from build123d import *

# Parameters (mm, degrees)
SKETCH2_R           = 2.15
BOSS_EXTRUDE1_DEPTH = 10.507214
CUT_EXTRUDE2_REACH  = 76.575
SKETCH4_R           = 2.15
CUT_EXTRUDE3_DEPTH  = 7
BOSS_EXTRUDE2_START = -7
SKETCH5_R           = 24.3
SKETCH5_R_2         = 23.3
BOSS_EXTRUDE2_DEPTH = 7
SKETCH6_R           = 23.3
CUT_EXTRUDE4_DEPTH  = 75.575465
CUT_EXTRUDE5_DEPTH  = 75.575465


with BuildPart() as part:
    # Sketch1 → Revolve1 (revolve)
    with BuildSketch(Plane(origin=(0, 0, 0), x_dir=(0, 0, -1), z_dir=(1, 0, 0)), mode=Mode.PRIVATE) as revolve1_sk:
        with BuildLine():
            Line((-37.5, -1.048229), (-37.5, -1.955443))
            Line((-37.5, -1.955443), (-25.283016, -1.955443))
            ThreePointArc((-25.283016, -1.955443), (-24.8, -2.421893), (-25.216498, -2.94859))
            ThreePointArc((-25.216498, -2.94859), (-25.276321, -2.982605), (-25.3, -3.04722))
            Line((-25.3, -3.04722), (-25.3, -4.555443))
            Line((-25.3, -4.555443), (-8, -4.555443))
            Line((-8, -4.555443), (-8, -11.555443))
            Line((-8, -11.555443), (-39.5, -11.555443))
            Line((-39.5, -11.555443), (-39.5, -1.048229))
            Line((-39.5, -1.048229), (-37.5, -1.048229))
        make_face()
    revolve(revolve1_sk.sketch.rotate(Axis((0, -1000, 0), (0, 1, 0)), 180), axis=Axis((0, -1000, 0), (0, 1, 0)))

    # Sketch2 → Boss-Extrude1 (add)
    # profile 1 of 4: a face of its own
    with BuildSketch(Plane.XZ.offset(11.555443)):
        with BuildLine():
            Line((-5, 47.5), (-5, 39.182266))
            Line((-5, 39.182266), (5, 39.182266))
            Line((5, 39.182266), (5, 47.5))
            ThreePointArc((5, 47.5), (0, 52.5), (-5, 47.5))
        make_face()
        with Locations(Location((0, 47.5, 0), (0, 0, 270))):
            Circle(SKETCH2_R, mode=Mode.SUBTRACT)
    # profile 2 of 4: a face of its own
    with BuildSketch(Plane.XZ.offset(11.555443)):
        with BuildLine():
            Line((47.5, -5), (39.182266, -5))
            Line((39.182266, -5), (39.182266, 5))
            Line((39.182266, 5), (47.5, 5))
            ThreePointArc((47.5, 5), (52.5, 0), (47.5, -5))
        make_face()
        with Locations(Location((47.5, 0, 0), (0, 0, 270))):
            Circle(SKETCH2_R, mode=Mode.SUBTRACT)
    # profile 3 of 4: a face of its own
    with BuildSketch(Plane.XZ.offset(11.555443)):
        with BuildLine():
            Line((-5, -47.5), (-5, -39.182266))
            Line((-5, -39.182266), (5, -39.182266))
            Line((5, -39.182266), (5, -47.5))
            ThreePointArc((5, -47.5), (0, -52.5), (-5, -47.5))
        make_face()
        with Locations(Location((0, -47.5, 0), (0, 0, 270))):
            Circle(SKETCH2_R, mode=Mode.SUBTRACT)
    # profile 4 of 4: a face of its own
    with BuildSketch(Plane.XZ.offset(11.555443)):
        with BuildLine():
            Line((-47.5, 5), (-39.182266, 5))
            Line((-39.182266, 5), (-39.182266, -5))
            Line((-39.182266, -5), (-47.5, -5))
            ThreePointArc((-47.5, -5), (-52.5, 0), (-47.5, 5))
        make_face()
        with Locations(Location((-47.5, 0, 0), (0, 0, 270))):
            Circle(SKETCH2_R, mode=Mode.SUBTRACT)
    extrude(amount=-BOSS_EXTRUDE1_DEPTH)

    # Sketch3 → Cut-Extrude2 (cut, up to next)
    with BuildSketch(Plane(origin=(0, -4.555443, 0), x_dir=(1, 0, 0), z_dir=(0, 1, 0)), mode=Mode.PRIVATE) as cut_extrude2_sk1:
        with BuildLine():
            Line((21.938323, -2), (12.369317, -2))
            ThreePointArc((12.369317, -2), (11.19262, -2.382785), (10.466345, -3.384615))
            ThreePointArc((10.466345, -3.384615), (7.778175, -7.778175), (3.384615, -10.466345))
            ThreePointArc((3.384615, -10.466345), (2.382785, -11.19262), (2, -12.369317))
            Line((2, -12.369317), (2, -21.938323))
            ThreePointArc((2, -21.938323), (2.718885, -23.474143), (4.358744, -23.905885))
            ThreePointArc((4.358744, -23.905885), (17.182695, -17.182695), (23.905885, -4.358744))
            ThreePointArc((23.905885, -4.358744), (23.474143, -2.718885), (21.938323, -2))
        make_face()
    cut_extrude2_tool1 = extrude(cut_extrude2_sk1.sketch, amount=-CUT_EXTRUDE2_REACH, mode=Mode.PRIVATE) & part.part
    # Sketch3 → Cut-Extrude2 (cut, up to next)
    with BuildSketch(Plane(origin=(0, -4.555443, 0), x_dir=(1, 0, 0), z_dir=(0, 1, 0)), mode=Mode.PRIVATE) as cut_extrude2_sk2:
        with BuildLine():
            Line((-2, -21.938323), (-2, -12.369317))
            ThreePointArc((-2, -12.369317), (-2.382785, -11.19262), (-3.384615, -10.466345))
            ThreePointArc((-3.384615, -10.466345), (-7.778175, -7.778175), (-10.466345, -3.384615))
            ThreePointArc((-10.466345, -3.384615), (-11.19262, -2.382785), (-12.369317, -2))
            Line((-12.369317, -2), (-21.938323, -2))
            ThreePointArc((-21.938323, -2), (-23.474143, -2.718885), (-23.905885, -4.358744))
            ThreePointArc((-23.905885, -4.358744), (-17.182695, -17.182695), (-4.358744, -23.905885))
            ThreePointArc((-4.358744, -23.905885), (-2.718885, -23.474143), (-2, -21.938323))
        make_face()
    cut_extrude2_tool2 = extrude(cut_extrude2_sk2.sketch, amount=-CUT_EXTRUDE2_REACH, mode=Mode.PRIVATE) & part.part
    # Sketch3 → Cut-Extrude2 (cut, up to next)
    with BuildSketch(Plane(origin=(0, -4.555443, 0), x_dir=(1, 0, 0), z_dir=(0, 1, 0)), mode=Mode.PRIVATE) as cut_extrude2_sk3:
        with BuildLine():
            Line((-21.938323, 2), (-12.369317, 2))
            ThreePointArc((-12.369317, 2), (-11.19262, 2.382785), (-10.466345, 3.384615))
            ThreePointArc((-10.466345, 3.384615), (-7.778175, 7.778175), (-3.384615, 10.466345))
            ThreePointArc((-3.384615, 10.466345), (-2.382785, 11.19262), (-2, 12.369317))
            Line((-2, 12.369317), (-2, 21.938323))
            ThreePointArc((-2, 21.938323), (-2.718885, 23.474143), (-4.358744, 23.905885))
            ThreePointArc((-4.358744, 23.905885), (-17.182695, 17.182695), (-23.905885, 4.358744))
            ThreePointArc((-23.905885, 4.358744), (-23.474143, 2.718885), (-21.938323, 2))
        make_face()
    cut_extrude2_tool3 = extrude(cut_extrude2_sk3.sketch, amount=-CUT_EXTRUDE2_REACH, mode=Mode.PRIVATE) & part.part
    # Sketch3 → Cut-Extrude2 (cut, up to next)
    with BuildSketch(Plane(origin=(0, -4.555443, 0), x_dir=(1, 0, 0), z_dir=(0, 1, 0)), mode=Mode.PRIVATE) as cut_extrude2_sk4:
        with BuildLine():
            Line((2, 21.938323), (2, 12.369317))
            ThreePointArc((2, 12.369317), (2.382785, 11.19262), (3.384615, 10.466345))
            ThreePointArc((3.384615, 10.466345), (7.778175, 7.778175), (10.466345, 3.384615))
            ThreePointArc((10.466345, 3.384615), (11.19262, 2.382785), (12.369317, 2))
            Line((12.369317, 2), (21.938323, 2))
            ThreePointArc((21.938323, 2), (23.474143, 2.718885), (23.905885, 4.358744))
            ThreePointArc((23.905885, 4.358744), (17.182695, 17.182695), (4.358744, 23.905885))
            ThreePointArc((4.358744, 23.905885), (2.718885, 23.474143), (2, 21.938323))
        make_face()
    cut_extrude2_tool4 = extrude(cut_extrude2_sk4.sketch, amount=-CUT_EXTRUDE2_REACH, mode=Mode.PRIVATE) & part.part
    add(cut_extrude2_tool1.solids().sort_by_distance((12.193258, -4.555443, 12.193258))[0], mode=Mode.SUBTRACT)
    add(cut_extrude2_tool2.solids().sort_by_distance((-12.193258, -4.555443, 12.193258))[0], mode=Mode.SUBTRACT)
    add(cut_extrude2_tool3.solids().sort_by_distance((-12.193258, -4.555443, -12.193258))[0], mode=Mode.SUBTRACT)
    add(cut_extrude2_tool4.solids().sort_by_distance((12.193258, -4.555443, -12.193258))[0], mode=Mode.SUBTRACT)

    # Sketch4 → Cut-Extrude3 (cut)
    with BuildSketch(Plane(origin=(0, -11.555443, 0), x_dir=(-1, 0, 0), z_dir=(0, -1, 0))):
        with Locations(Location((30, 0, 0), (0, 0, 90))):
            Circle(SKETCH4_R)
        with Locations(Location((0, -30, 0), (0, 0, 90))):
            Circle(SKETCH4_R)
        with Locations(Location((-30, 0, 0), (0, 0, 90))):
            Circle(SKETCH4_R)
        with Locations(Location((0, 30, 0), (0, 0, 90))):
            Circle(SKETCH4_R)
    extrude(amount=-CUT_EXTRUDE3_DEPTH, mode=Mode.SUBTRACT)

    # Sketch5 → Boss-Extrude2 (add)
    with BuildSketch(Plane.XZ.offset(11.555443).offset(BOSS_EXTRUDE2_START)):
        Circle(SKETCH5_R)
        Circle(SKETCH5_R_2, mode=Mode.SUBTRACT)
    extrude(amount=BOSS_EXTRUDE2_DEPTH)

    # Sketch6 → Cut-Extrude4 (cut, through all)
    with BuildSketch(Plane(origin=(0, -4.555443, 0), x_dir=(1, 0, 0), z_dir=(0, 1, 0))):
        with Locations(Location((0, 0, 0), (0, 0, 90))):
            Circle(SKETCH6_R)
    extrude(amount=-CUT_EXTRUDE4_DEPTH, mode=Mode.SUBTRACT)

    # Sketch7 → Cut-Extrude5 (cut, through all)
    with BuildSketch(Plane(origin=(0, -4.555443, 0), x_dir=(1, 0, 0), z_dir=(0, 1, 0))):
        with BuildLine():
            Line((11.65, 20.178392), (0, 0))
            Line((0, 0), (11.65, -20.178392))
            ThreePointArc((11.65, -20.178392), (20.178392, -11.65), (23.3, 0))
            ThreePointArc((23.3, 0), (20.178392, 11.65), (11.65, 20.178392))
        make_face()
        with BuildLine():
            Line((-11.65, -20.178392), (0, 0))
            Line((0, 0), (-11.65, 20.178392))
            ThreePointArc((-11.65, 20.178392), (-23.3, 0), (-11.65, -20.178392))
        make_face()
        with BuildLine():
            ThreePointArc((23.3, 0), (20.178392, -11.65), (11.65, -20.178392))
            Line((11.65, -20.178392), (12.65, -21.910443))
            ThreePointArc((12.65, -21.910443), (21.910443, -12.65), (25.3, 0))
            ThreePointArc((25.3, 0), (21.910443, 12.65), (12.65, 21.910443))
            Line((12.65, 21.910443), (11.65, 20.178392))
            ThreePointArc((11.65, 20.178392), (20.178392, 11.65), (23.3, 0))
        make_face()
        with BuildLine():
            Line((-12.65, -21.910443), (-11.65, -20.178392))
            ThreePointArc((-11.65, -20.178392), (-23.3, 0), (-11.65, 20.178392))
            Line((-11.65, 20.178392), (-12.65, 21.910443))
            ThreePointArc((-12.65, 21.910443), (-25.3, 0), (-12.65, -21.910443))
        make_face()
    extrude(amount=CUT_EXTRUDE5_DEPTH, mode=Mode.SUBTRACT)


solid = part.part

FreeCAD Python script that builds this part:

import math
import FreeCAD as App
import Part
import Sketcher

V = App.Vector
Q = App.Units.Quantity

doc = App.newDocument("Part")
body = doc.addObject("PartDesign::Body", "Body")

sketch1 = body.newObject("Sketcher::SketchObject", "Sketch")
sketch1.AttachmentSupport = (doc.getObject("YZ_Plane"), [""])
sketch1.MapMode = "FlatFace"
sketch1.addGeometry(Part.LineSegment(V(-1.96, 37.5, 0), V(-1.05, 37.5, 0)), False)
sketch1.addGeometry(Part.LineSegment(V(-1.05, 37.5, 0), V(-1.05, 39.5, 0)), False)
sketch1.addGeometry(Part.LineSegment(V(-1.05, 39.5, 0), V(-11.56, 39.5, 0)), False)
sketch1.addGeometry(Part.LineSegment(V(-11.56, 39.5, 0), V(-11.56, 8, 0)), False)
sketch1.addGeometry(Part.LineSegment(V(-11.56, 8, 0), V(-4.56, 8, 0)), False)
sketch1.addGeometry(Part.LineSegment(V(-4.56, 8, 0), V(-4.56, 25.3, 0)), False)
sketch1.addGeometry(Part.LineSegment(V(-4.56, 25.3, 0), V(-3.05, 25.3, 0)), False)
sketch1.addGeometry(Part.ArcOfCircle(Part.Circle(V(-3.05, 25.2, 0), V(0, 0, 1), 0.1), math.radians(9), math.radians(90)), False)
sketch1.addGeometry(Part.ArcOfCircle(Part.Circle(V(-2.46, 25.3, 0), V(0, 0, 1), 0.5), math.radians(-171), math.radians(-2)), False)
sketch1.addGeometry(Part.LineSegment(V(-1.96, 25.28, 0), V(-1.96, 37.5, 0)), False)
sketch1.addConstraint(Sketcher.Constraint("Coincident", 0, 2, 1, 1))
sketch1.addConstraint(Sketcher.Constraint("Coincident", 1, 2, 2, 1))
sketch1.addConstraint(Sketcher.Constraint("Coincident", 2, 2, 3, 1))
sketch1.addConstraint(Sketcher.Constraint("Coincident", 3, 2, 4, 1))
sketch1.addConstraint(Sketcher.Constraint("Coincident", 4, 2, 5, 1))
sketch1.addConstraint(Sketcher.Constraint("Coincident", 5, 2, 6, 1))
sketch1.addConstraint(Sketcher.Constraint("Coincident", 6, 2, 7, 2))
sketch1.addConstraint(Sketcher.Constraint("Coincident", 7, 1, 8, 1))
sketch1.addConstraint(Sketcher.Constraint("Coincident", 8, 2, 9, 1))
sketch1.addConstraint(Sketcher.Constraint("Coincident", 9, 2, 0, 1))
sketch1.addConstraint(Sketcher.Constraint("Horizontal", 0))
sketch1.addConstraint(Sketcher.Constraint("Vertical", 1))
sketch1.addConstraint(Sketcher.Constraint("Horizontal", 2))
sketch1.addConstraint(Sketcher.Constraint("Vertical", 3))
sketch1.addConstraint(Sketcher.Constraint("Horizontal", 4))
sketch1.addConstraint(Sketcher.Constraint("Vertical", 5))
sketch1.addConstraint(Sketcher.Constraint("Horizontal", 6))
sketch1.addConstraint(Sketcher.Constraint("Vertical", 9))
sketch1.addConstraint(Sketcher.Constraint("Vertical", 7, 3, 6, 2))
sketch1.addConstraint(Sketcher.Constraint("Radius", 7, 0.100001))
sketch1.addConstraint(Sketcher.Constraint("DistanceX", 4, 1, 4, 2, 7.0))
sketch1.addConstraint(Sketcher.Constraint("DistanceY", 1, 1, 1, 2, 2.0))
sketch1.addConstraint(Sketcher.Constraint("DistanceY", 3, 2, 3, 1, 31.5))
sketch1.addConstraint(Sketcher.Constraint("DistanceY", 5, 1, 5, 2, 17.3))
sketch1.addConstraint(Sketcher.Constraint("DistanceY", -1, 1, 3, 2, 8.0))
sketch1.addConstraint(Sketcher.Constraint("DistanceX", 5, 2, 8, 2, 2.6))
sketch1.addConstraint(Sketcher.Constraint("Radius", 8, 0.500128))
sketch1.addConstraint(Sketcher.Constraint("DistanceY", 7, 3, 7, 1, 0.016499))
sketch1.addConstraint(Sketcher.Constraint("DistanceX", 0, 1, 0, 2, 0.907214))
sketch1.addConstraint(Sketcher.Constraint("DistanceX", 6, 1, 6, 2, 1.508223))
sketch1.addConstraint(Sketcher.Constraint("DistanceY", 9, 1, 9, 2, 12.216984))
sketch1.addConstraint(Sketcher.Constraint("DistanceX", 7, 3, -1, 1, 3.04722))
revolution = body.newObject("PartDesign::Revolution", "Revolution")
revolution.Profile = sketch1
revolution.ReferenceAxis = (sketch1, ["H_Axis"])
revolution.Angle = 360

sketch2 = body.newObject("Sketcher::SketchObject", "Sketch001")
sketch2.AttachmentSupport = (doc.getObject("XZ_Plane"), [""])
sketch2.MapMode = "FlatFace"
sketch2.AttachmentOffset = App.Placement(V(0, 0, 11.555443), App.Rotation())
sketch2.addGeometry(Part.LineSegment(V(-5, 47.5, 0), V(-5, 39.2, 0)), False)
sketch2.addGeometry(Part.LineSegment(V(-5, 39.2, 0), V(5, 39.2, 0)), False)
sketch2.addGeometry(Part.LineSegment(V(5, 39.2, 0), V(5, 47.5, 0)), False)
sketch2.addGeometry(Part.ArcOfCircle(Part.Circle(V(0, 47.5, 0), V(0, 0, 1), 5), math.radians(0), math.radians(180)), False)
sketch2.addGeometry(Part.Circle(V(0, 47.5, 0), V(0, 0, 1), 2.1), False)
sketch2.addGeometry(Part.LineSegment(V(39.2, -5, 0), V(47.5, -5, 0)), False)
sketch2.addGeometry(Part.ArcOfCircle(Part.Circle(V(47.5, 0, 0), V(0, 0, 1), 5), math.radians(-90), math.radians(90)), False)
sketch2.addGeometry(Part.LineSegment(V(47.5, 5, 0), V(39.2, 5, 0)), False)
sketch2.addGeometry(Part.LineSegment(V(39.2, 5, 0), V(39.2, -5, 0)), False)
sketch2.addGeometry(Part.Circle(V(47.5, 0, 0), V(0, 0, 1), 2.1), False)
sketch2.addGeometry(Part.LineSegment(V(-5, -39.2, 0), V(-5, -47.5, 0)), False)
sketch2.addGeometry(Part.ArcOfCircle(Part.Circle(V(0, -47.5, 0), V(0, 0, 1), 5), math.radians(180), math.radians(360)), False)
sketch2.addGeometry(Part.LineSegment(V(5, -47.5, 0), V(5, -39.2, 0)), False)
sketch2.addGeometry(Part.LineSegment(V(5, -39.2, 0), V(-5, -39.2, 0)), False)
sketch2.addGeometry(Part.Circle(V(0, -47.5, 0), V(0, 0, 1), 2.1), False)
sketch2.addGeometry(Part.LineSegment(V(-39.2, 5, 0), V(-47.5, 5, 0)), False)
sketch2.addGeometry(Part.ArcOfCircle(Part.Circle(V(-47.5, 0, 0), V(0, 0, 1), 5), math.radians(90), math.radians(270)), False)
sketch2.addGeometry(Part.LineSegment(V(-47.5, -5, 0), V(-39.2, -5, 0)), False)
sketch2.addGeometry(Part.LineSegment(V(-39.2, -5, 0), V(-39.2, 5, 0)), False)
sketch2.addGeometry(Part.Circle(V(-47.5, 0, 0), V(0, 0, 1), 2.1), False)
sketch2.addConstraint(Sketcher.Constraint("Coincident", 0, 2, 1, 1))
sketch2.addConstraint(Sketcher.Constraint("Coincident", 1, 2, 2, 1))
sketch2.addConstraint(Sketcher.Constraint("Tangent", 2, 2, 3, 1))
sketch2.addConstraint(Sketcher.Constraint("Tangent", 3, 2, 0, 1))
sketch2.addConstraint(Sketcher.Constraint("Tangent", 5, 2, 6, 1))
sketch2.addConstraint(Sketcher.Constraint("Tangent", 6, 2, 7, 1))
sketch2.addConstraint(Sketcher.Constraint("Coincident", 7, 2, 8, 1))
sketch2.addConstraint(Sketcher.Constraint("Coincident", 8, 2, 5, 1))
sketch2.addConstraint(Sketcher.Constraint("Tangent", 10, 2, 11, 1))
sketch2.addConstraint(Sketcher.Constraint("Tangent", 11, 2, 12, 1))
sketch2.addConstraint(Sketcher.Constraint("Coincident", 12, 2, 13, 1))
sketch2.addConstraint(Sketcher.Constraint("Coincident", 13, 2, 10, 1))
sketch2.addConstraint(Sketcher.Constraint("Tangent", 15, 2, 16, 1))
sketch2.addConstraint(Sketcher.Constraint("Tangent", 16, 2, 17, 1))
sketch2.addConstraint(Sketcher.Constraint("Coincident", 17, 2, 18, 1))
sketch2.addConstraint(Sketcher.Constraint("Coincident", 18, 2, 15, 1))
sketch2.addConstraint(Sketcher.Constraint("Vertical", 0))
sketch2.addConstraint(Sketcher.Constraint("Horizontal", 1))
sketch2.addConstraint(Sketcher.Constraint("Vertical", 2))
sketch2.addConstraint(Sketcher.Constraint("Horizontal", 5))
sketch2.addConstraint(Sketcher.Constraint("Horizontal", 7))
sketch2.addConstraint(Sketcher.Constraint("Vertical", 8))
sketch2.addConstraint(Sketcher.Constraint("Vertical", 10))
sketch2.addConstraint(Sketcher.Constraint("Vertical", 12))
sketch2.addConstraint(Sketcher.Constraint("Horizontal", 13))
sketch2.addConstraint(Sketcher.Constraint("Horizontal", 15))
sketch2.addConstraint(Sketcher.Constraint("Horizontal", 17))
sketch2.addConstraint(Sketcher.Constraint("Vertical", 18))
sketch2.addConstraint(Sketcher.Constraint("Coincident", 4, 3, 3, 3))
sketch2.addConstraint(Sketcher.Constraint("Coincident", 9, 3, 6, 3))
sketch2.addConstraint(Sketcher.Constraint("Coincident", 14, 3, 11, 3))
sketch2.addConstraint(Sketcher.Constraint("Coincident", 19, 3, 16, 3))
sketch2.addConstraint(Sketcher.Constraint("Equal", 3, 6))
sketch2.addConstraint(Sketcher.Constraint("Equal", 4, 9))
sketch2.addConstraint(Sketcher.Constraint("Equal", 6, 11))
sketch2.addConstraint(Sketcher.Constraint("Equal", 9, 14))
sketch2.addConstraint(Sketcher.Constraint("Equal", 11, 16))
sketch2.addConstraint(Sketcher.Constraint("Equal", 14, 19))
sketch2.addConstraint(Sketcher.Constraint("Symmetric", 3, 3, 11, 3, -1, 1))
sketch2.addConstraint(Sketcher.Constraint("Symmetric", 6, 3, 16, 3, -1, 1))
sketch2.addConstraint(Sketcher.Constraint("Symmetric", 8, 2, 17, 2, -2))
sketch2.addConstraint(Sketcher.Constraint("Symmetric", 1, 2, 12, 2, -1))
sketch2.addConstraint(Sketcher.Constraint("Equal", 17, 0))
sketch2.addConstraint(Sketcher.Constraint("Radius", 3, 5.0))
sketch2.addConstraint(Sketcher.Constraint("Diameter", 4, 4.3))
sketch2.addConstraint(Sketcher.Constraint("DistanceY", 11, 3, 3, 3, 95.0))
sketch2.addConstraint(Sketcher.Constraint("DistanceX", 16, 3, 6, 3, 95.0))
sketch2.addConstraint(Sketcher.Constraint("DistanceX", 5, 1, 5, 2, 8.317734))
pad1 = body.newObject("PartDesign::Pad", "Pad")
pad1.Profile = sketch2
pad1.Length = 10.507214
pad1.Reversed = True

sketch3 = body.newObject("Sketcher::SketchObject", "Sketch002")
sketch3.AttachmentSupport = (doc.getObject("XZ_Plane"), [""])
sketch3.MapMode = "FlatFace"
sketch3.AttachmentOffset = App.Placement(V(0, 0, 4.555443), App.Rotation())
sketch3.addGeometry(Part.LineSegment(V(21.9, 2, 0), V(12.4, 2, 0)), False)
sketch3.addGeometry(Part.ArcOfCircle(Part.Circle(V(12.4, 4, 0), V(0, 0, 1), 2), math.radians(-162), math.radians(-90)), False)
sketch3.addGeometry(Part.ArcOfCircle(Part.Circle(V(0, 0, 0), V(0, 0, 1), 11), math.radians(18), math.radians(72)), False)
sketch3.addGeometry(Part.ArcOfCircle(Part.Circle(V(4, 12.4, 0), V(0, 0, 1), 2), math.radians(-180), math.radians(-108)), False)
sketch3.addGeometry(Part.LineSegment(V(2, 12.4, 0), V(2, 21.9, 0)), False)
sketch3.addGeometry(Part.ArcOfCircle(Part.Circle(V(4, 21.9, 0), V(0, 0, 1), 2), math.radians(80), math.radians(180)), False)
sketch3.addGeometry(Part.ArcOfCircle(Part.Circle(V(0, 0, 0), V(0, 0, 1), 24.3), math.radians(10), math.radians(80)), False)
sketch3.addGeometry(Part.ArcOfCircle(Part.Circle(V(21.9, 4, 0), V(0, 0, 1), 2), math.radians(-90), math.radians(10)), False)
sketch3.addConstraint(Sketcher.Constraint("Tangent", 0, 2, 1, 2))
sketch3.addConstraint(Sketcher.Constraint("Tangent", 1, 1, 2, 1))
sketch3.addConstraint(Sketcher.Constraint("Tangent", 2, 2, 3, 2))
sketch3.addConstraint(Sketcher.Constraint("Tangent", 3, 1, 4, 1))
sketch3.addConstraint(Sketcher.Constraint("Tangent", 4, 2, 5, 2))
sketch3.addConstraint(Sketcher.Constraint("Tangent", 5, 1, 6, 2))
sketch3.addConstraint(Sketcher.Constraint("Tangent", 6, 1, 7, 2))
sketch3.addConstraint(Sketcher.Constraint("Tangent", 7, 1, 0, 1))
sketch3.addConstraint(Sketcher.Constraint("Horizontal", 0))
sketch3.addConstraint(Sketcher.Constraint("Vertical", 4))
sketch3.addConstraint(Sketcher.Constraint("Coincident", 2, 3, -1, 1))
sketch3.addConstraint(Sketcher.Constraint("Coincident", 6, 3, -1, 1))
sketch3.addConstraint(Sketcher.Constraint("Equal", 1, 3))
sketch3.addConstraint(Sketcher.Constraint("Equal", 3, 5))
sketch3.addConstraint(Sketcher.Constraint("Equal", 5, 7))
sketch3.addConstraint(Sketcher.Constraint("Equal", 0, 4))
sketch3.addConstraint(Sketcher.Constraint("Radius", 1, 2.000001))
sketch3.addConstraint(Sketcher.Constraint("DistanceY", -1, 1, 1, 3, 4.000001))
sketch3.addConstraint(Sketcher.Constraint("Radius", 2, 10.999994))
sketch3.addConstraint(Sketcher.Constraint("Radius", 6, 24.299997))
pocket1 = body.newObject("PartDesign::Pocket", "Pocket")
pocket1.Profile = sketch3
pocket1.Type = "UpToFirst"
pocket1.Reversed = True

sketch4 = body.newObject("Sketcher::SketchObject", "Sketch003")
sketch4.AttachmentSupport = (doc.getObject("XZ_Plane"), [""])
sketch4.MapMode = "FlatFace"
sketch4.AttachmentOffset = App.Placement(V(0, 0, 4.555443), App.Rotation())
sketch4.addGeometry(Part.LineSegment(V(-2, 21.9, 0), V(-2, 12.4, 0)), False)
sketch4.addGeometry(Part.ArcOfCircle(Part.Circle(V(-4, 12.4, 0), V(0, 0, 1), 2), math.radians(-72), math.radians(0)), False)
sketch4.addGeometry(Part.ArcOfCircle(Part.Circle(V(0, 0, 0), V(0, 0, 1), 11), math.radians(108), math.radians(162)), False)
sketch4.addGeometry(Part.ArcOfCircle(Part.Circle(V(-12.4, 4, 0), V(0, 0, 1), 2), math.radians(-90), math.radians(-18)), False)
sketch4.addGeometry(Part.LineSegment(V(-12.4, 2, 0), V(-21.9, 2, 0)), False)
sketch4.addGeometry(Part.ArcOfCircle(Part.Circle(V(-21.9, 4, 0), V(0, 0, 1), 2), math.radians(170), math.radians(270)), False)
sketch4.addGeometry(Part.ArcOfCircle(Part.Circle(V(0, 0, 0), V(0, 0, 1), 24.3), math.radians(100), math.radians(170)), False)
sketch4.addGeometry(Part.ArcOfCircle(Part.Circle(V(-4, 21.9, 0), V(0, 0, 1), 2), math.radians(0), math.radians(100)), False)
sketch4.addConstraint(Sketcher.Constraint("Tangent", 0, 2, 1, 2))
sketch4.addConstraint(Sketcher.Constraint("Tangent", 1, 1, 2, 1))
sketch4.addConstraint(Sketcher.Constraint("Tangent", 2, 2, 3, 2))
sketch4.addConstraint(Sketcher.Constraint("Tangent", 3, 1, 4, 1))
sketch4.addConstraint(Sketcher.Constraint("Tangent", 4, 2, 5, 2))
sketch4.addConstraint(Sketcher.Constraint("Tangent", 5, 1, 6, 2))
sketch4.addConstraint(Sketcher.Constraint("Tangent", 6, 1, 7, 2))
sketch4.addConstraint(Sketcher.Constraint("Tangent", 7, 1, 0, 1))
sketch4.addConstraint(Sketcher.Constraint("Vertical", 0))
sketch4.addConstraint(Sketcher.Constraint("Horizontal", 4))
sketch4.addConstraint(Sketcher.Constraint("Coincident", 2, 3, -1, 1))
sketch4.addConstraint(Sketcher.Constraint("Coincident", 6, 3, -1, 1))
sketch4.addConstraint(Sketcher.Constraint("Equal", 1, 3))
sketch4.addConstraint(Sketcher.Constraint("Equal", 3, 5))
sketch4.addConstraint(Sketcher.Constraint("Equal", 5, 7))
sketch4.addConstraint(Sketcher.Constraint("Equal", 4, 0))
sketch4.addConstraint(Sketcher.Constraint("Radius", 1, 2.000001))
sketch4.addConstraint(Sketcher.Constraint("DistanceX", 1, 3, -1, 1, 4.000001))
sketch4.addConstraint(Sketcher.Constraint("Radius", 2, 10.999994))
sketch4.addConstraint(Sketcher.Constraint("Radius", 6, 24.299997))
pocket2 = body.newObject("PartDesign::Pocket", "Pocket001")
pocket2.Profile = sketch4
pocket2.Type = "UpToFirst"
pocket2.Reversed = True

sketch5 = body.newObject("Sketcher::SketchObject", "Sketch004")
sketch5.AttachmentSupport = (doc.getObject("XZ_Plane"), [""])
sketch5.MapMode = "FlatFace"
sketch5.AttachmentOffset = App.Placement(V(0, 0, 4.555443), App.Rotation())
sketch5.addGeometry(Part.LineSegment(V(-21.9, -2, 0), V(-12.4, -2, 0)), False)
sketch5.addGeometry(Part.ArcOfCircle(Part.Circle(V(-12.4, -4, 0), V(0, 0, 1), 2), math.radians(18), math.radians(90)), False)
sketch5.addGeometry(Part.ArcOfCircle(Part.Circle(V(0, 0, 0), V(0, 0, 1), 11), math.radians(-162), math.radians(-108)), False)
sketch5.addGeometry(Part.ArcOfCircle(Part.Circle(V(-4, -12.4, 0), V(0, 0, 1), 2), math.radians(0), math.radians(72)), False)
sketch5.addGeometry(Part.LineSegment(V(-2, -12.4, 0), V(-2, -21.9, 0)), False)
sketch5.addGeometry(Part.ArcOfCircle(Part.Circle(V(-4, -21.9, 0), V(0, 0, 1), 2), math.radians(-100), math.radians(0)), False)
sketch5.addGeometry(Part.ArcOfCircle(Part.Circle(V(0, 0, 0), V(0, 0, 1), 24.3), math.radians(-170), math.radians(-100)), False)
sketch5.addGeometry(Part.ArcOfCircle(Part.Circle(V(-21.9, -4, 0), V(0, 0, 1), 2), math.radians(90), math.radians(190)), False)
sketch5.addConstraint(Sketcher.Constraint("Tangent", 0, 2, 1, 2))
sketch5.addConstraint(Sketcher.Constraint("Tangent", 1, 1, 2, 1))
sketch5.addConstraint(Sketcher.Constraint("Tangent", 2, 2, 3, 2))
sketch5.addConstraint(Sketcher.Constraint("Tangent", 3, 1, 4, 1))
sketch5.addConstraint(Sketcher.Constraint("Tangent", 4, 2, 5, 2))
sketch5.addConstraint(Sketcher.Constraint("Tangent", 5, 1, 6, 2))
sketch5.addConstraint(Sketcher.Constraint("Tangent", 6, 1, 7, 2))
sketch5.addConstraint(Sketcher.Constraint("Tangent", 7, 1, 0, 1))
sketch5.addConstraint(Sketcher.Constraint("Horizontal", 0))
sketch5.addConstraint(Sketcher.Constraint("Vertical", 4))
sketch5.addConstraint(Sketcher.Constraint("Coincident", 2, 3, -1, 1))
sketch5.addConstraint(Sketcher.Constraint("Coincident", 6, 3, -1, 1))
sketch5.addConstraint(Sketcher.Constraint("Equal", 1, 3))
sketch5.addConstraint(Sketcher.Constraint("Equal", 3, 5))
sketch5.addConstraint(Sketcher.Constraint("Equal", 5, 7))
sketch5.addConstraint(Sketcher.Constraint("Equal", 0, 4))
sketch5.addConstraint(Sketcher.Constraint("Radius", 1, 2.000001))
sketch5.addConstraint(Sketcher.Constraint("DistanceY", 1, 3, -1, 1, 4.000001))
sketch5.addConstraint(Sketcher.Constraint("Radius", 2, 10.999994))
sketch5.addConstraint(Sketcher.Constraint("Radius", 6, 24.299997))
pocket3 = body.newObject("PartDesign::Pocket", "Pocket002")
pocket3.Profile = sketch5
pocket3.Type = "UpToFirst"
pocket3.Reversed = True

sketch6 = body.newObject("Sketcher::SketchObject", "Sketch005")
sketch6.AttachmentSupport = (doc.getObject("XZ_Plane"), [""])
sketch6.MapMode = "FlatFace"
sketch6.AttachmentOffset = App.Placement(V(0, 0, 4.555443), App.Rotation())
sketch6.addGeometry(Part.LineSegment(V(2, -21.9, 0), V(2, -12.4, 0)), False)
sketch6.addGeometry(Part.ArcOfCircle(Part.Circle(V(4, -12.4, 0), V(0, 0, 1), 2), math.radians(108), math.radians(180)), False)
sketch6.addGeometry(Part.ArcOfCircle(Part.Circle(V(0, 0, 0), V(0, 0, 1), 11), math.radians(-72), math.radians(-18)), False)
sketch6.addGeometry(Part.ArcOfCircle(Part.Circle(V(12.4, -4, 0), V(0, 0, 1), 2), math.radians(90), math.radians(162)), False)
sketch6.addGeometry(Part.LineSegment(V(12.4, -2, 0), V(21.9, -2, 0)), False)
sketch6.addGeometry(Part.ArcOfCircle(Part.Circle(V(21.9, -4, 0), V(0, 0, 1), 2), math.radians(-10), math.radians(90)), False)
sketch6.addGeometry(Part.ArcOfCircle(Part.Circle(V(0, 0, 0), V(0, 0, 1), 24.3), math.radians(-80), math.radians(-10)), False)
sketch6.addGeometry(Part.ArcOfCircle(Part.Circle(V(4, -21.9, 0), V(0, 0, 1), 2), math.radians(-180), math.radians(-80)), False)
sketch6.addConstraint(Sketcher.Constraint("Tangent", 0, 2, 1, 2))
sketch6.addConstraint(Sketcher.Constraint("Tangent", 1, 1, 2, 1))
sketch6.addConstraint(Sketcher.Constraint("Tangent", 2, 2, 3, 2))
sketch6.addConstraint(Sketcher.Constraint("Tangent", 3, 1, 4, 1))
sketch6.addConstraint(Sketcher.Constraint("Tangent", 4, 2, 5, 2))
sketch6.addConstraint(Sketcher.Constraint("Tangent", 5, 1, 6, 2))
sketch6.addConstraint(Sketcher.Constraint("Tangent", 6, 1, 7, 2))
sketch6.addConstraint(Sketcher.Constraint("Tangent", 7, 1, 0, 1))
sketch6.addConstraint(Sketcher.Constraint("Vertical", 0))
sketch6.addConstraint(Sketcher.Constraint("Horizontal", 4))
sketch6.addConstraint(Sketcher.Constraint("Coincident", 2, 3, -1, 1))
sketch6.addConstraint(Sketcher.Constraint("Coincident", 6, 3, -1, 1))
sketch6.addConstraint(Sketcher.Constraint("Equal", 1, 3))
sketch6.addConstraint(Sketcher.Constraint("Equal", 3, 5))
sketch6.addConstraint(Sketcher.Constraint("Equal", 5, 7))
sketch6.addConstraint(Sketcher.Constraint("Equal", 4, 0))
sketch6.addConstraint(Sketcher.Constraint("Radius", 1, 2.000001))
sketch6.addConstraint(Sketcher.Constraint("DistanceX", -1, 1, 1, 3, 4.000001))
sketch6.addConstraint(Sketcher.Constraint("Radius", 2, 10.999994))
sketch6.addConstraint(Sketcher.Constraint("Radius", 6, 24.299997))
pocket4 = body.newObject("PartDesign::Pocket", "Pocket003")
pocket4.Profile = sketch6
pocket4.Type = "UpToFirst"
pocket4.Reversed = True

sketch7 = body.newObject("Sketcher::SketchObject", "Sketch006")
sketch7.AttachmentSupport = (doc.getObject("XZ_Plane"), [""])
sketch7.MapMode = "FlatFace"
sketch7.AttachmentOffset = App.Placement(V(0, 0, 11.555443), App.Rotation())
sketch7.addGeometry(Part.Circle(V(-30, 0, 0), V(0, 0, 1), 2.1), False)
sketch7.addGeometry(Part.Circle(V(0, 30, 0), V(0, 0, 1), 2.1), False)
sketch7.addGeometry(Part.Circle(V(30, 0, 0), V(0, 0, 1), 2.1), False)
sketch7.addGeometry(Part.Circle(V(0, -30, 0), V(0, 0, 1), 2.1), False)
sketch7.addConstraint(Sketcher.Constraint("Equal", 0, 1))
sketch7.addConstraint(Sketcher.Constraint("Equal", 1, 2))
sketch7.addConstraint(Sketcher.Constraint("Equal", 2, 3))
sketch7.addConstraint(Sketcher.Constraint("Symmetric", 0, 3, 2, 3, -1, 1))
sketch7.addConstraint(Sketcher.Constraint("Symmetric", 1, 3, 3, 3, -1, 1))
sketch7.addConstraint(Sketcher.Constraint("PointOnObject", 0, 3, -1))
sketch7.addConstraint(Sketcher.Constraint("PointOnObject", 1, 3, -2))
sketch7.addConstraint(Sketcher.Constraint("Diameter", 0, 4.3))
sketch7.addConstraint(Sketcher.Constraint("DistanceX", 0, 3, -1, 1, 30.0))
sketch7.addConstraint(Sketcher.Constraint("DistanceY", -1, 1, 1, 3, 30.0))
pocket5 = body.newObject("PartDesign::Pocket", "Pocket004")
pocket5.Profile = sketch7
pocket5.Length = 7

sketch8 = body.newObject("Sketcher::SketchObject", "Sketch007")
sketch8.AttachmentSupport = (doc.getObject("XZ_Plane"), [""])
sketch8.MapMode = "FlatFace"
sketch8.AttachmentOffset = App.Placement(V(0, 0, 4.555443), App.Rotation())
sketch8.addGeometry(Part.Circle(V(0, 0, 0), V(0, 0, 1), 24), False)
sketch8.addGeometry(Part.Circle(V(0, 0, 0), V(0, 0, 1), 23), False)
sketch8.addConstraint(Sketcher.Constraint("Coincident", 0, 3, -1, 1))
sketch8.addConstraint(Sketcher.Constraint("Coincident", 1, 3, -1, 1))
sketch8.addConstraint(Sketcher.Constraint("Diameter", 0, 48.6))
sketch8.addConstraint(Sketcher.Constraint("Diameter", 1, 46.6))
pad2 = body.newObject("PartDesign::Pad", "Pad001")
pad2.Profile = sketch8
pad2.Length = 7

sketch9 = body.newObject("Sketcher::SketchObject", "Sketch008")
sketch9.AttachmentSupport = (doc.getObject("XZ_Plane"), [""])
sketch9.MapMode = "FlatFace"
sketch9.AttachmentOffset = App.Placement(V(0, 0, 4.555443), App.Rotation())
sketch9.addGeometry(Part.Circle(V(0, 0, 0), V(0, 0, 1), 23), False)
sketch9.addConstraint(Sketcher.Constraint("Coincident", 0, 3, -1, 1))
sketch9.addConstraint(Sketcher.Constraint("Diameter", 0, 46.6))
pocket6 = body.newObject("PartDesign::Pocket", "Pocket005")
pocket6.Profile = sketch9
pocket6.Type = "ThroughAll"
pocket6.Reversed = True

sketch10 = body.newObject("Sketcher::SketchObject", "Sketch009")
sketch10.AttachmentSupport = (doc.getObject("XZ_Plane"), [""])
sketch10.MapMode = "FlatFace"
sketch10.AttachmentOffset = App.Placement(V(0, 0, 4.555443), App.Rotation())
sketch10.addGeometry(Part.LineSegment(V(11.7, -20.2, 0), V(0, 0, 0)), False)
sketch10.addGeometry(Part.LineSegment(V(0, 0, 0), V(11.7, 20.2, 0)), False)
sketch10.addGeometry(Part.LineSegment(V(11.7, 20.2, 0), V(12.7, 21.9, 0)), False)
sketch10.addGeometry(Part.ArcOfCircle(Part.Circle(V(0, 0, 0), V(0, 0, 1), 25.3), math.radians(0), math.radians(60)), False)
sketch10.addGeometry(Part.ArcOfCircle(Part.Circle(V(0, 0, 0), V(0, 0, 1), 25.3), math.radians(-60), math.radians(0)), False)
sketch10.addGeometry(Part.LineSegment(V(12.7, -21.9, 0), V(11.7, -20.2, 0)), False)
sketch10.addGeometry(Part.LineSegment(V(-11.7, 20.2, 0), V(0, 0, 0)), False)
sketch10.addGeometry(Part.LineSegment(V(0, 0, 0), V(-11.7, -20.2, 0)), False)
sketch10.addGeometry(Part.LineSegment(V(-11.7, -20.2, 0), V(-12.7, -21.9, 0)), False)
sketch10.addGeometry(Part.ArcOfCircle(Part.Circle(V(0, 0, 0), V(0, 0, 1), 25.3), math.radians(120), math.radians(240)), False)
sketch10.addGeometry(Part.LineSegment(V(-12.7, 21.9, 0), V(-11.7, 20.2, 0)), False)
sketch10.addConstraint(Sketcher.Constraint("Coincident", 0, 2, 1, 1))
sketch10.addConstraint(Sketcher.Constraint("Coincident", 1, 2, 2, 1))
sketch10.addConstraint(Sketcher.Constraint("Coincident", 2, 2, 3, 2))
sketch10.addConstraint(Sketcher.Constraint("Tangent", 3, 1, 4, 2))
sketch10.addConstraint(Sketcher.Constraint("Coincident", 4, 1, 5, 1))
sketch10.addConstraint(Sketcher.Constraint("Coincident", 5, 2, 0, 1))
sketch10.addConstraint(Sketcher.Constraint("Coincident", 6, 2, 7, 1))
sketch10.addConstraint(Sketcher.Constraint("Coincident", 7, 2, 8, 1))
sketch10.addConstraint(Sketcher.Constraint("Coincident", 8, 2, 9, 2))
sketch10.addConstraint(Sketcher.Constraint("Coincident", 9, 1, 10, 1))
sketch10.addConstraint(Sketcher.Constraint("Coincident", 10, 2, 6, 1))
sketch10.addConstraint(Sketcher.Constraint("Coincident", 3, 3, -1, 1))
sketch10.addConstraint(Sketcher.Constraint("Coincident", 9, 3, -1, 1))
sketch10.addConstraint(Sketcher.Constraint("Coincident", 0, 2, -1, 1))
sketch10.addConstraint(Sketcher.Constraint("Coincident", 6, 2, -1, 1))
sketch10.addConstraint(Sketcher.Constraint("Equal", 3, 4))
sketch10.addConstraint(Sketcher.Constraint("Equal", 4, 9))
sketch10.addConstraint(Sketcher.Constraint("Symmetric", 1, 2, 7, 2, -1, 1))
sketch10.addConstraint(Sketcher.Constraint("Symmetric", 5, 2, 10, 2, -1, 1))
sketch10.addConstraint(Sketcher.Constraint("Symmetric", 5, 2, 7, 2, -2))
sketch10.addConstraint(Sketcher.Constraint("PointOnObject", 3, 1, -1))
sketch10.addConstraint(Sketcher.Constraint("Parallel", 1, 2))
sketch10.addConstraint(Sketcher.Constraint("Parallel", 0, 5))
sketch10.addConstraint(Sketcher.Constraint("Parallel", 7, 8))
sketch10.addConstraint(Sketcher.Constraint("Parallel", 6, 10))
sketch10.addConstraint(Sketcher.Constraint("Radius", 3, 25.299999))
sketch10.addConstraint(Sketcher.Constraint("Angle", 0, Q("120 deg")))
sketch10.addConstraint(Sketcher.Constraint("Distance", 2, 2.0))
pocket7 = body.newObject("PartDesign::Pocket", "Pocket006")
pocket7.Profile = sketch10
pocket7.Type = "ThroughAll"

doc.recompute()
